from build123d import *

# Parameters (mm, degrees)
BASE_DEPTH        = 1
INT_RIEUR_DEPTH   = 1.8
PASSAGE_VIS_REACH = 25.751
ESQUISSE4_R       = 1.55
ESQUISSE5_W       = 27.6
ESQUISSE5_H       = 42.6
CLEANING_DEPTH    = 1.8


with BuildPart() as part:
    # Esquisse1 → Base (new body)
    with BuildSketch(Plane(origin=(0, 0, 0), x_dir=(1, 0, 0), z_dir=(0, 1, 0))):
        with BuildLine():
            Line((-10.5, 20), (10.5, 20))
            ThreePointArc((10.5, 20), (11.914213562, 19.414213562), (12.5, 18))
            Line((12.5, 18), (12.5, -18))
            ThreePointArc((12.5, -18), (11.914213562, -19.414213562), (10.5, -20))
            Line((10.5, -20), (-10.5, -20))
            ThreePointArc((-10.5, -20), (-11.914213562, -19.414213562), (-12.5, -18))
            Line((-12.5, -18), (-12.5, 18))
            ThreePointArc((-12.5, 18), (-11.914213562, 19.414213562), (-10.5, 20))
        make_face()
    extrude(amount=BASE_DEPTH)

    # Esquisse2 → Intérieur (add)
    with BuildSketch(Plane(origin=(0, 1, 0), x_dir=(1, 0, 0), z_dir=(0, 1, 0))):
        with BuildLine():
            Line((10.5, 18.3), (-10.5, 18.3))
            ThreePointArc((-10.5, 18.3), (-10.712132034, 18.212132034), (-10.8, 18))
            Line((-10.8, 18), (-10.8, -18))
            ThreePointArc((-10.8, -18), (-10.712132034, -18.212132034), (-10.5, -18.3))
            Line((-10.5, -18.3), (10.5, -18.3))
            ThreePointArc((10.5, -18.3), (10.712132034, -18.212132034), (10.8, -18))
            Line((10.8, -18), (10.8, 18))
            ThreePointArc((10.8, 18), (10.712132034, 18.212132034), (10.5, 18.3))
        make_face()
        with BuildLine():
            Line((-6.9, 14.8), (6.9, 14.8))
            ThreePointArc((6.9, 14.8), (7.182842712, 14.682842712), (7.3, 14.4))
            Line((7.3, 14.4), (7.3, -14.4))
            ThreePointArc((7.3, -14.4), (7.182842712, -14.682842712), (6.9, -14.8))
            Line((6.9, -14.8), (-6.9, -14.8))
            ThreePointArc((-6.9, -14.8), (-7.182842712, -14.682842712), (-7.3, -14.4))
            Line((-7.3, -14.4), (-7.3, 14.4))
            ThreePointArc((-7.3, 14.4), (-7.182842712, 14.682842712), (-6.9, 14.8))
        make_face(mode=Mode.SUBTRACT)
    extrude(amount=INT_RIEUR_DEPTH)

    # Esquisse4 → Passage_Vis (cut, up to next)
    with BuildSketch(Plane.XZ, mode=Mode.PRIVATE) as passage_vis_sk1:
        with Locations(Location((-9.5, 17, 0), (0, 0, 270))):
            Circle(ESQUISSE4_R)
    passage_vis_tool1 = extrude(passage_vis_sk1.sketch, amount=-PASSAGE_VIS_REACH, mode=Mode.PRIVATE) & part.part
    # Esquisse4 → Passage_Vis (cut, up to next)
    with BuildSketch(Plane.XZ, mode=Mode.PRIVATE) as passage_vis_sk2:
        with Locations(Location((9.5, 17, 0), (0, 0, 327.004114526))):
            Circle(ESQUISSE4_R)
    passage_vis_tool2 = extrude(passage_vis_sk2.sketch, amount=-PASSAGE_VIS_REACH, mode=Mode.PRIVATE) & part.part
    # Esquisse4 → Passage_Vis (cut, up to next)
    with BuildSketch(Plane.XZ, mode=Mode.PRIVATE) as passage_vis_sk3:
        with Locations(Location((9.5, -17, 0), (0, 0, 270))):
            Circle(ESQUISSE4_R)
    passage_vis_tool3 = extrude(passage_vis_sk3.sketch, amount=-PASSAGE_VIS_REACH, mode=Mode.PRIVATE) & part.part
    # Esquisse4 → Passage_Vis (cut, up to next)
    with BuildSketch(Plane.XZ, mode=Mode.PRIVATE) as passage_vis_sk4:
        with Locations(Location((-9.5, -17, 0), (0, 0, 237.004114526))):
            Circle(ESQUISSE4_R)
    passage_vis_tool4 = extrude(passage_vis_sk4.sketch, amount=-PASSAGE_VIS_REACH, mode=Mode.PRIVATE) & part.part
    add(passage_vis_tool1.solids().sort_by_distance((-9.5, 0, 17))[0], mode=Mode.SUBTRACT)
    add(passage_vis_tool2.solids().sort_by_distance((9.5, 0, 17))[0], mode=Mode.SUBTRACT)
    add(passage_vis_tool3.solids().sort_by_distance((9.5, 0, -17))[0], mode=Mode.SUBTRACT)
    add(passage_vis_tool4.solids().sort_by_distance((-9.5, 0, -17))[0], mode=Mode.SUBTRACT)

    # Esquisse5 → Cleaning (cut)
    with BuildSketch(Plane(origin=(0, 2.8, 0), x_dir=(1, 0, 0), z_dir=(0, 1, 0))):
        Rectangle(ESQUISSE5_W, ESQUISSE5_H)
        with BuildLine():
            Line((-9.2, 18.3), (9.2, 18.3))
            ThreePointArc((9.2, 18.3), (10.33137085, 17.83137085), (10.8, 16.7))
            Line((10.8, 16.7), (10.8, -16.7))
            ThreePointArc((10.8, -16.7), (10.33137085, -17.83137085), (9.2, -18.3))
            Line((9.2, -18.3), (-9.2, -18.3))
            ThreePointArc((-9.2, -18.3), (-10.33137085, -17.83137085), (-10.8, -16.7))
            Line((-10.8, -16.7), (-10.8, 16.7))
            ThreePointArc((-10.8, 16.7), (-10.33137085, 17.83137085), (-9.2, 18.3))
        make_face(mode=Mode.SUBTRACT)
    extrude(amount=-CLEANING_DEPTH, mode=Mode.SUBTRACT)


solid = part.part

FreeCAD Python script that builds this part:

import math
import FreeCAD as App
import Part
import Sketcher

V = App.Vector
Q = App.Units.Quantity

doc = App.newDocument("Part")
body = doc.addObject("PartDesign::Body", "Body")

# Sketch on XZ plane
sketch1 = body.newObject("Sketcher::SketchObject", "Sketch")
sketch1.AttachmentSupport = (doc.getObject("XZ_Plane"), [""])
sketch1.MapMode = "FlatFace"
sketch1.addGeometry([
    Part.LineSegment(V(10.5, -20, 0), V(-10.5, -20, 0)),  # 0
    Part.ArcOfCircle(Part.Circle(V(-10.5, -18, 0), V(0, 0, 1), 2), math.radians(-180), math.radians(-90)),  # 1
    Part.LineSegment(V(-12.5, -18, 0), V(-12.5, 18, 0)),  # 2
    Part.ArcOfCircle(Part.Circle(V(-10.5, 18, 0), V(0, 0, 1), 2), math.radians(90), math.radians(180)),  # 3
    Part.LineSegment(V(-10.5, 20, 0), V(10.5, 20, 0)),  # 4
    Part.ArcOfCircle(Part.Circle(V(10.5, 18, 0), V(0, 0, 1), 2), math.radians(0), math.radians(90)),  # 5
    Part.LineSegment(V(12.5, 18, 0), V(12.5, -18, 0)),  # 6
    Part.ArcOfCircle(Part.Circle(V(10.5, -18, 0), V(0, 0, 1), 2), math.radians(-90), math.radians(0)),  # 7
], False)
sketch1.addConstraint([
    Sketcher.Constraint("Tangent", 0, 2, 1, 2),
    Sketcher.Constraint("Tangent", 1, 1, 2, 1),
    Sketcher.Constraint("Tangent", 2, 2, 3, 2),
    Sketcher.Constraint("Tangent", 3, 1, 4, 1),
    Sketcher.Constraint("Tangent", 4, 2, 5, 2),
    Sketcher.Constraint("Tangent", 5, 1, 6, 1),
    Sketcher.Constraint("Tangent", 6, 2, 7, 2),
    Sketcher.Constraint("Tangent", 7, 1, 0, 1),
    Sketcher.Constraint("Horizontal", 0),
    Sketcher.Constraint("Vertical", 2),
    Sketcher.Constraint("Horizontal", 4),
    Sketcher.Constraint("Vertical", 6),
    Sketcher.Constraint("Equal", 1, 3),
    Sketcher.Constraint("Equal", 3, 5),
    Sketcher.Constraint("Equal", 5, 7),
    Sketcher.Constraint("Symmetric", 1, 3, 5, 3, -1, 1),
    Sketcher.Constraint("Radius", 1, Q("2 mm")),
    Sketcher.Constraint("DistanceX", 0, 2, 0, 1, Q("21 mm")),
    Sketcher.Constraint("DistanceY", 2, 1, 2, 2, Q("36 mm")),
])
pad1 = body.newObject("PartDesign::Pad", "Pad")
pad1.Profile = sketch1
pad1.Length = 1
pad1.Reversed = True

# Sketch on XZ plane
sketch2 = body.newObject("Sketcher::SketchObject", "Sketch001")
sketch2.AttachmentSupport = (doc.getObject("XZ_Plane"), [""])
sketch2.MapMode = "FlatFace"
sketch2.AttachmentOffset = App.Placement(V(0, 0, -1), App.Rotation())
sketch2.addGeometry([
    Part.LineSegment(V(10.5, -18.3, 0), V(-10.5, -18.3, 0)),  # 0
    Part.ArcOfCircle(Part.Circle(V(-10.5, -18, 0), V(0, 0, 1), 0.3), math.radians(-180), math.radians(-90)),  # 1
    Part.LineSegment(V(-10.8, -18, 0), V(-10.8, 18, 0)),  # 2
    Part.ArcOfCircle(Part.Circle(V(-10.5, 18, 0), V(0, 0, 1), 0.3), math.radians(90), math.radians(180)),  # 3
    Part.LineSegment(V(-10.5, 18.3, 0), V(10.5, 18.3, 0)),  # 4
    Part.ArcOfCircle(Part.Circle(V(10.5, 18, 0), V(0, 0, 1), 0.3), math.radians(0), math.radians(90)),  # 5
    Part.LineSegment(V(10.8, 18, 0), V(10.8, -18, 0)),  # 6
    Part.ArcOfCircle(Part.Circle(V(10.5, -18, 0), V(0, 0, 1), 0.3), math.radians(-90), math.radians(0)),  # 7
    Part.ArcOfCircle(Part.Circle(V(-6.9, -14.4, 0), V(0, 0, 1), 0.4), math.radians(-180), math.radians(-90)),  # 8
    Part.LineSegment(V(-6.9, -14.8, 0), V(6.9, -14.8, 0)),  # 9
    Part.ArcOfCircle(Part.Circle(V(6.9, -14.4, 0), V(0, 0, 1), 0.4), math.radians(-90), math.radians(0)),  # 10
    Part.LineSegment(V(7.3, -14.4, 0), V(7.3, 14.4, 0)),  # 11
    Part.ArcOfCircle(Part.Circle(V(6.9, 14.4, 0), V(0, 0, 1), 0.4), math.radians(0), math.radians(90)),  # 12
    Part.LineSegment(V(6.9, 14.8, 0), V(-6.9, 14.8, 0)),  # 13
    Part.ArcOfCircle(Part.Circle(V(-6.9, 14.4, 0), V(0, 0, 1), 0.4), math.radians(90), math.radians(180)),  # 14
    Part.LineSegment(V(-7.3, 14.4, 0), V(-7.3, -14.4, 0)),  # 15
], False)
sketch2.addConstraint([
    Sketcher.Constraint("Tangent", 0, 2, 1, 2),
    Sketcher.Constraint("Tangent", 1, 1, 2, 1),
    Sketcher.Constraint("Tangent", 2, 2, 3, 2),
    Sketcher.Constraint("Tangent", 3, 1, 4, 1),
    Sketcher.Constraint("Tangent", 4, 2, 5, 2),
    Sketcher.Constraint("Tangent", 5, 1, 6, 1),
    Sketcher.Constraint("Tangent", 6, 2, 7, 2),
    Sketcher.Constraint("Tangent", 7, 1, 0, 1),
    Sketcher.Constraint("Tangent", 8, 2, 9, 1),
    Sketcher.Constraint("Tangent", 9, 2, 10, 1),
    Sketcher.Constraint("Tangent", 10, 2, 11, 1),
    Sketcher.Constraint("Tangent", 11, 2, 12, 1),
    Sketcher.Constraint("Tangent", 12, 2, 13, 1),
    Sketcher.Constraint("Tangent", 13, 2, 14, 1),
    Sketcher.Constraint("Tangent", 14, 2, 15, 1),
    Sketcher.Constraint("Tangent", 15, 2, 8, 1),
    Sketcher.Constraint("Horizontal", 0),
    Sketcher.Constraint("Vertical", 2),
    Sketcher.Constraint("Horizontal", 4),
    Sketcher.Constraint("Vertical", 6),
    Sketcher.Constraint("Horizontal", 9),
    Sketcher.Constraint("Vertical", 11),
    Sketcher.Constraint("Horizontal", 13),
    Sketcher.Constraint("Vertical", 15),
    Sketcher.Constraint("Equal", 1, 3),
    Sketcher.Constraint("Equal", 3, 5),
    Sketcher.Constraint("Equal", 5, 7),
    Sketcher.Constraint("Equal", 8, 10),
    Sketcher.Constraint("Equal", 10, 12),
    Sketcher.Constraint("Equal", 12, 14),
    Sketcher.Constraint("Symmetric", 1, 3, 5, 3, -1, 1),
    Sketcher.Constraint("Symmetric", 8, 3, 12, 3, -1, 1),
    Sketcher.Constraint("Radius", 1, Q("0.3 mm")),
    Sketcher.Constraint("Radius", 8, Q("0.4 mm")),
    Sketcher.Constraint("DistanceX", 0, 2, 0, 1, Q("21 mm")),
    Sketcher.Constraint("DistanceY", 2, 1, 2, 2, Q("36 mm")),
    Sketcher.Constraint("DistanceX", 9, 1, 9, 2, Q("13.8 mm")),
    Sketcher.Constraint("DistanceY", 11, 1, 11, 2, Q("28.8 mm")),
])
pad2 = body.newObject("PartDesign::Pad", "Pad001")
pad2.Profile = sketch2
pad2.Length = 1.8
pad2.Reversed = True

# Sketch on XZ plane
sketch3 = body.newObject("Sketcher::SketchObject", "Sketch002")
sketch3.AttachmentSupport = (doc.getObject("XZ_Plane"), [""])
sketch3.MapMode = "FlatFace"
sketch3.addGeometry(Part.Circle(V(-9.5, 17, 0), V(0, 0, 1), 1.6), False)
sketch3.addConstraint([
    Sketcher.Constraint("Diameter", 0, Q("3.1 mm")),
    Sketcher.Constraint("DistanceY", -1, 1, 0, 3, Q("17 mm")),
    Sketcher.Constraint("DistanceX", 0, 3, -1, 1, Q("9.5 mm")),
])
pocket1 = body.newObject("PartDesign::Pocket", "Pocket")
pocket1.Profile = sketch3
pocket1.Type = "UpToFirst"

# Sketch on XZ plane
sketch4 = body.newObject("Sketcher::SketchObject", "Sketch003")
sketch4.AttachmentSupport = (doc.getObject("XZ_Plane"), [""])
sketch4.MapMode = "FlatFace"
sketch4.addGeometry(Part.Circle(V(9.5, 17, 0), V(0, 0, 1), 1.6), False)
sketch4.addConstraint([
    Sketcher.Constraint("Diameter", 0, Q("3.1 mm")),
    Sketcher.Constraint("DistanceY", -1, 1, 0, 3, Q("17 mm")),
    Sketcher.Constraint("DistanceX", -1, 1, 0, 3, Q("9.5 mm")),
])
pocket2 = body.newObject("PartDesign::Pocket", "Pocket001")
pocket2.Profile = sketch4
pocket2.Type = "UpToFirst"

# Sketch on XZ plane
sketch5 = body.newObject("Sketcher::SketchObject", "Sketch004")
sketch5.AttachmentSupport = (doc.getObject("XZ_Plane"), [""])
sketch5.MapMode = "FlatFace"
sketch5.addGeometry(Part.Circle(V(9.5, -17, 0), V(0, 0, 1), 1.6), False)
sketch5.addConstraint([
    Sketcher.Constraint("Diameter", 0, Q("3.1 mm")),
    Sketcher.Constraint("DistanceY", 0, 3, -1, 1, Q("17 mm")),
    Sketcher.Constraint("DistanceX", -1, 1, 0, 3, Q("9.5 mm")),
])
pocket3 = body.newObject("PartDesign::Pocket", "Pocket002")
pocket3.Profile = sketch5
pocket3.Type = "UpToFirst"

# Sketch on XZ plane
sketch6 = body.newObject("Sketcher::SketchObject", "Sketch005")
sketch6.AttachmentSupport = (doc.getObject("XZ_Plane"), [""])
sketch6.MapMode = "FlatFace"
sketch6.addGeometry(Part.Circle(V(-9.5, -17, 0), V(0, 0, 1), 1.6), False)
sketch6.addConstraint([
    Sketcher.Constraint("Diameter", 0, Q("3.1 mm")),
    Sketcher.Constraint("DistanceY", 0, 3, -1, 1, Q("17 mm")),
    Sketcher.Constraint("DistanceX", 0, 3, -1, 1, Q("9.5 mm")),
])
pocket4 = body.newObject("PartDesign::Pocket", "Pocket003")
pocket4.Profile = sketch6
pocket4.Type = "UpToFirst"

# Sketch on XZ plane
sketch7 = body.newObject("Sketcher::SketchObject", "Sketch006")
sketch7.AttachmentSupport = (doc.getObject("XZ_Plane"), [""])
sketch7.MapMode = "FlatFace"
sketch7.AttachmentOffset = App.Placement(V(0, 0, -2.8), App.Rotation())
sketch7.addGeometry([
    Part.LineSegment(V(-13.8, -21.3, 0), V(-13.8, 21.3, 0)),  # 0
    Part.LineSegment(V(-13.8, 21.3, 0), V(13.8, 21.3, 0)),  # 1
    Part.LineSegment(V(13.8, 21.3, 0), V(13.8, -21.3, 0)),  # 2
    Part.LineSegment(V(13.8, -21.3, 0), V(-13.8, -21.3, 0)),  # 3
    Part.ArcOfCircle(Part.Circle(V(-9.2, -16.7, 0), V(0, 0, 1), 1.6), math.radians(180), math.radians(270)),  # 4
    Part.LineSegment(V(-9.2, -18.3, 0), V(9.2, -18.3, 0)),  # 5
    Part.ArcOfCircle(Part.Circle(V(9.2, -16.7, 0), V(0, 0, 1), 1.6), math.radians(-90), math.radians(0)),  # 6
    Part.LineSegment(V(10.8, -16.7, 0), V(10.8, 16.7, 0)),  # 7
    Part.ArcOfCircle(Part.Circle(V(9.2, 16.7, 0), V(0, 0, 1), 1.6), math.radians(0), math.radians(90)),  # 8
    Part.LineSegment(V(9.2, 18.3, 0), V(-9.2, 18.3, 0)),  # 9
    Part.ArcOfCircle(Part.Circle(V(-9.2, 16.7, 0), V(0, 0, 1), 1.6), math.radians(90), math.radians(180)),  # 10
    Part.LineSegment(V(-10.8, 16.7, 0), V(-10.8, -16.7, 0)),  # 11
], False)
sketch7.addConstraint([
    Sketcher.Constraint("Coincident", 0, 2, 1, 1),
    Sketcher.Constraint("Coincident", 1, 2, 2, 1),
    Sketcher.Constraint("Coincident", 2, 2, 3, 1),
    Sketcher.Constraint("Coincident", 3, 2, 0, 1),
    Sketcher.Constraint("Tangent", 4, 2, 5, 1),
    Sketcher.Constraint("Tangent", 5, 2, 6, 1),
    Sketcher.Constraint("Tangent", 6, 2, 7, 1),
    Sketcher.Constraint("Tangent", 7, 2, 8, 1),
    Sketcher.Constraint("Tangent", 8, 2, 9, 1),
    Sketcher.Constraint("Tangent", 9, 2, 10, 1),
    Sketcher.Constraint("Tangent", 10, 2, 11, 1),
    Sketcher.Constraint("Tangent", 11, 2, 4, 1),
    Sketcher.Constraint("Vertical", 0),
    Sketcher.Constraint("Horizontal", 1),
    Sketcher.Constraint("Vertical", 2),
    Sketcher.Constraint("Horizontal", 3),
    Sketcher.Constraint("Horizontal", 5),
    Sketcher.Constraint("Vertical", 7),
    Sketcher.Constraint("Horizontal", 9),
    Sketcher.Constraint("Vertical", 11),
    Sketcher.Constraint("Equal", 4, 6),
    Sketcher.Constraint("Equal", 6, 8),
    Sketcher.Constraint("Equal", 8, 10),
    Sketcher.Constraint("Symmetric", 4, 3, 8, 3, -1, 1),
    Sketcher.Constraint("Symmetric", 0, 2, 2, 2, -1, 1),
    Sketcher.Constraint("Radius", 4, Q("1.6 mm")),
    Sketcher.Constraint("DistanceX", 1, 1, 1, 2, Q("27.6 mm")),
    Sketcher.Constraint("DistanceX", 5, 1, 5, 2, Q("18.4 mm")),
    Sketcher.Constraint("DistanceY", 0, 1, 0, 2, Q("42.6 mm")),
    Sketcher.Constraint("DistanceY", 7, 1, 7, 2, Q("33.4 mm")),
])
pocket5 = body.newObject("PartDesign::Pocket", "Pocket004")
pocket5.Profile = sketch7
pocket5.Length = 1.8
pocket5.Reversed = True

doc.recompute()
